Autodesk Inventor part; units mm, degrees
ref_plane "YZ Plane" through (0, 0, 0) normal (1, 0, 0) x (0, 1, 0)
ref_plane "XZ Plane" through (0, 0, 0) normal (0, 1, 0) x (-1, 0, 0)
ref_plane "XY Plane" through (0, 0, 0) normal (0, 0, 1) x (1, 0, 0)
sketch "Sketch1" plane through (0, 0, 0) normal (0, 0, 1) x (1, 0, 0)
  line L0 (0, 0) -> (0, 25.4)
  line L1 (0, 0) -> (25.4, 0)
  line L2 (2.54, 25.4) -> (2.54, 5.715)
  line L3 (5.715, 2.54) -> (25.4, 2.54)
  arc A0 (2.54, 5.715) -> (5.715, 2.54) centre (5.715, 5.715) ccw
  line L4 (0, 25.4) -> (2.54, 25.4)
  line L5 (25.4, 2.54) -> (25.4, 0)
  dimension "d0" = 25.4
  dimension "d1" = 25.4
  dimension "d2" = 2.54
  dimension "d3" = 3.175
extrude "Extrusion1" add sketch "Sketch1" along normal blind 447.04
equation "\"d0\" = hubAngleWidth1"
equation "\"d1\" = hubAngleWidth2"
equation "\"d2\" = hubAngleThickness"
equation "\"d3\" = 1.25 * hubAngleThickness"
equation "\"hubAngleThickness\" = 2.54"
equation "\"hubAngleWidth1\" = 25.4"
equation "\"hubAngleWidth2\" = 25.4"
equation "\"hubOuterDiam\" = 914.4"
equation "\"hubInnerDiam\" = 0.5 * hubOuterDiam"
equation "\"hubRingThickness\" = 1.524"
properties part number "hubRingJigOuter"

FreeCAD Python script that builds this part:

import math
import FreeCAD as App
import Part
import Sketcher
from FreeCAD import Vector
Q = App.Units.Quantity

doc = App.newDocument("Part")
params = doc.addObject("Spreadsheet::Sheet", "Params")
for row, (alias, value) in enumerate([
    ("sketch1_width", "1 in"),
    ("sketch1_width2", "0.1 in"),
    ("sketch1_radius", "0.125 in"),
    ("pad1_length", "17.6 in"),
], start=1):
    params.set(f"A{row}", alias)
    params.set(f"B{row}", "=" + value)
    params.setAlias(f"B{row}", alias)

body = doc.addObject("PartDesign::Body", "Body")

# Sketch on XY plane
sketch1 = doc.addObject("Sketcher::SketchObject", "Sketch")
body.addObject(sketch1)
sketch1.AttachmentSupport = (doc.XY_Plane, [""])
sketch1.MapMode = "FlatFace"
sketch1.addGeometry(Part.LineSegment(Vector(0, 25.4, 0), Vector(0, 0, 0)), False)
sketch1.addGeometry(Part.LineSegment(Vector(0, 0, 0), Vector(25.4, 0, 0)), False)
sketch1.addGeometry(Part.LineSegment(Vector(25.4, 0, 0), Vector(25.4, 2.54, 0)), False)
sketch1.addGeometry(Part.LineSegment(Vector(25.4, 2.54, 0), Vector(5.715, 2.54, 0)), False)
sketch1.addGeometry(Part.ArcOfCircle(Part.Circle(Vector(5.715, 5.715, 0), Vector(0, 0, 1), 3.175), math.radians(180), math.radians(270)), False)
sketch1.addGeometry(Part.LineSegment(Vector(2.54, 5.715, 0), Vector(2.54, 25.4, 0)), False)
sketch1.addGeometry(Part.LineSegment(Vector(2.54, 25.4, 0), Vector(0, 25.4, 0)), False)
sketch1.addConstraint(Sketcher.Constraint("Coincident", 0, 2, 1, 1))
sketch1.addConstraint(Sketcher.Constraint("Coincident", 1, 2, 2, 1))
sketch1.addConstraint(Sketcher.Constraint("Coincident", 2, 2, 3, 1))
sketch1.addConstraint(Sketcher.Constraint("Tangent", 3, 2, 4, 2))
sketch1.addConstraint(Sketcher.Constraint("Tangent", 4, 1, 5, 1))
sketch1.addConstraint(Sketcher.Constraint("Coincident", 5, 2, 6, 1))
sketch1.addConstraint(Sketcher.Constraint("Coincident", 6, 2, 0, 1))
sketch1.addConstraint(Sketcher.Constraint("Vertical", 0))
sketch1.addConstraint(Sketcher.Constraint("Horizontal", 1))
sketch1.addConstraint(Sketcher.Constraint("Vertical", 2))
sketch1.addConstraint(Sketcher.Constraint("Horizontal", 3))
sketch1.addConstraint(Sketcher.Constraint("Vertical", 5))
sketch1.addConstraint(Sketcher.Constraint("Horizontal", 6))
sketch1.addConstraint(Sketcher.Constraint("Coincident", 0, 2, -1, 1))
sketch1.addConstraint(Sketcher.Constraint("Equal", 1, 0))
sketch1.addConstraint(Sketcher.Constraint("Equal", 6, 2))
sketch1.addConstraint(Sketcher.Constraint("DistanceX", 1, 1, 1, 2, Q("1 in")))
sketch1.addConstraint(Sketcher.Constraint("DistanceX", 6, 2, 6, 1, Q("0.1 in")))
sketch1.addConstraint(Sketcher.Constraint("Radius", 4, Q("0.125 in")))
sketch1.setExpression("Constraints[16]", "Params.sketch1_width")
sketch1.setExpression("Constraints[17]", "Params.sketch1_width2")
sketch1.setExpression("Constraints[18]", "Params.sketch1_radius")
pad1 = doc.addObject("PartDesign::Pad", "Pad")
body.addObject(pad1)
pad1.Profile = sketch1
pad1.setExpression("Length", "Params.pad1_length")

doc.recompute()
